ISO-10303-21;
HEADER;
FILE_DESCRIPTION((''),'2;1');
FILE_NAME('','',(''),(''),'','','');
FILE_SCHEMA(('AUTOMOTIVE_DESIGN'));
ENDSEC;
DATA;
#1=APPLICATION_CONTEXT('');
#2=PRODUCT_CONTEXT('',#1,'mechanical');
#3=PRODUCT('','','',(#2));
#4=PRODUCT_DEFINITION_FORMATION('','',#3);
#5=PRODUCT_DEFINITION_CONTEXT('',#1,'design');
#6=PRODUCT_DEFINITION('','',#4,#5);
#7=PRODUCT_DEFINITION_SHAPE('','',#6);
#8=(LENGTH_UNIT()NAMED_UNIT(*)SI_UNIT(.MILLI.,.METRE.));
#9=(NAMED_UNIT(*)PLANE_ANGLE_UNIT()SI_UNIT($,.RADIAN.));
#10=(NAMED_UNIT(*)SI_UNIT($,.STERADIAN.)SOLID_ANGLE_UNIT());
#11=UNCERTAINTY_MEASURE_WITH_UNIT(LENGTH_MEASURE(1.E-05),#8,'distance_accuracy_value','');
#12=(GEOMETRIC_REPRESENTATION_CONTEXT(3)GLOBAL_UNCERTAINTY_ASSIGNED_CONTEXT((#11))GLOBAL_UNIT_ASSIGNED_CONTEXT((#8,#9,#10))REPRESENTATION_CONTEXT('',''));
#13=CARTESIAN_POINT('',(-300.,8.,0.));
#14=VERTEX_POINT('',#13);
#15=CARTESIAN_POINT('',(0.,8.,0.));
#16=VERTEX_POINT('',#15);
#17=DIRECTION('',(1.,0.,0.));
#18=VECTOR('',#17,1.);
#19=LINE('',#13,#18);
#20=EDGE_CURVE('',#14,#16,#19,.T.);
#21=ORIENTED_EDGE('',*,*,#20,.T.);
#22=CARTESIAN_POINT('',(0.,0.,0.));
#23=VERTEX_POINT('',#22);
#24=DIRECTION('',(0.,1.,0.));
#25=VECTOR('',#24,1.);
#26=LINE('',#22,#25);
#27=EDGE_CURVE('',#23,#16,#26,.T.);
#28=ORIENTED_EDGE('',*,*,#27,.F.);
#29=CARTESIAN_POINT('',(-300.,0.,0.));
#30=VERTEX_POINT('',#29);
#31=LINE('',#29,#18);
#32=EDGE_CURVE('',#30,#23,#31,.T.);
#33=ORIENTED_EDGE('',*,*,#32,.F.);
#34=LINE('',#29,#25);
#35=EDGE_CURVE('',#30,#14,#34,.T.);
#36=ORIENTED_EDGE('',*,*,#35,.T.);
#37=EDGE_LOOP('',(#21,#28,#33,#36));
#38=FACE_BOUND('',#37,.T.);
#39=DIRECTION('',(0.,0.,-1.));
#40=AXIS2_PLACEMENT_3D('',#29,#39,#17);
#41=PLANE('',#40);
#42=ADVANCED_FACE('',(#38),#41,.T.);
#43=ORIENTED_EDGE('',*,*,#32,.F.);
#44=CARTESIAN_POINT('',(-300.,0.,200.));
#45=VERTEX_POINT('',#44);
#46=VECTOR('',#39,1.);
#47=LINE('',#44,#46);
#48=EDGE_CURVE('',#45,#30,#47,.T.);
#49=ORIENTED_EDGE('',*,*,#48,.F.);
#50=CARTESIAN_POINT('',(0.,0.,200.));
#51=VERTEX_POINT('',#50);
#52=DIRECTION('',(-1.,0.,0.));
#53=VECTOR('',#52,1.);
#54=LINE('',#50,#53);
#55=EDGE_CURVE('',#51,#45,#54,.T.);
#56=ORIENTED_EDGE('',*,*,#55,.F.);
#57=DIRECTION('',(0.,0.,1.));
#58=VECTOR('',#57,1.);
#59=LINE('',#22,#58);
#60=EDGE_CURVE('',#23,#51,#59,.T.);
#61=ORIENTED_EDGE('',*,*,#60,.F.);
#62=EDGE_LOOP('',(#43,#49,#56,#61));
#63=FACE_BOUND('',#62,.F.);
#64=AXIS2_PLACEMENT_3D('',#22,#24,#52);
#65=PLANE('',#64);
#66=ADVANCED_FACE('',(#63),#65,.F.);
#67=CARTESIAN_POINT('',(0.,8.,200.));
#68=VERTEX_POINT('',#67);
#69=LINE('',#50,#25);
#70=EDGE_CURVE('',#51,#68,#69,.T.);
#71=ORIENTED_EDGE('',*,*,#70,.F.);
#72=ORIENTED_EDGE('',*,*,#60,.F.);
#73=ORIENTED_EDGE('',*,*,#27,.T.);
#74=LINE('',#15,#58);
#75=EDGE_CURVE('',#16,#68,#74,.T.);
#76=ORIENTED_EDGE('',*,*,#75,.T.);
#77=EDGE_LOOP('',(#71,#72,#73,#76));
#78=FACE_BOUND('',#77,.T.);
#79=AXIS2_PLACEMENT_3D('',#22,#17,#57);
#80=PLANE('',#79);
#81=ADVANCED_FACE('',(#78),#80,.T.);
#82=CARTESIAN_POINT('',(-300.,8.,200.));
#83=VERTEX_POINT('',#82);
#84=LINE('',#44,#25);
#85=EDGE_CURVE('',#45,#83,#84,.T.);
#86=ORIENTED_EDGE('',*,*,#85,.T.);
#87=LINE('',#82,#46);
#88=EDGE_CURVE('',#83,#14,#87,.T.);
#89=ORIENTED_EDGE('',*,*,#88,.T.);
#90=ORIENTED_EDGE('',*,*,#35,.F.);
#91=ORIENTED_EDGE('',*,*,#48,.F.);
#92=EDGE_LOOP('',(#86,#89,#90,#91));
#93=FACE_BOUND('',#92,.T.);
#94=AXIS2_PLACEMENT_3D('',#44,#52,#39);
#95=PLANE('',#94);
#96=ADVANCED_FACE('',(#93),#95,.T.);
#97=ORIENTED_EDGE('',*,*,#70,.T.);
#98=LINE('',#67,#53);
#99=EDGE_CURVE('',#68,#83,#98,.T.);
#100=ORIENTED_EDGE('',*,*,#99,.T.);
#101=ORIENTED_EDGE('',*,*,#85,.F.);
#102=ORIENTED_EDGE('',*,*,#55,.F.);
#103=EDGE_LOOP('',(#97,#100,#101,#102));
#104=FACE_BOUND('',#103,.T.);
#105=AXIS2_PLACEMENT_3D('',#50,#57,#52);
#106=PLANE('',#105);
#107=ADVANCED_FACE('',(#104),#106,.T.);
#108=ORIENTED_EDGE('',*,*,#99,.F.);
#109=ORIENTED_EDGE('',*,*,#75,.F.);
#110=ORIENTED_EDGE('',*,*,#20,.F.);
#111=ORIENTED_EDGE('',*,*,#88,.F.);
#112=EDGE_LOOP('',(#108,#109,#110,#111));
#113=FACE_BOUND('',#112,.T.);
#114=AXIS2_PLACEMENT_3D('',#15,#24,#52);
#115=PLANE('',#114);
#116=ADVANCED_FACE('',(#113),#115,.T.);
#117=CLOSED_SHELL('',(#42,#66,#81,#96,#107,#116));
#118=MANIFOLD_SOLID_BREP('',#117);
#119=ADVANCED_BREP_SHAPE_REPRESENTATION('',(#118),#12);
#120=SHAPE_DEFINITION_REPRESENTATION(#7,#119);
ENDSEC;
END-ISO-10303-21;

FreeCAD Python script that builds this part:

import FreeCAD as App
import Part
import Sketcher
Q = App.Units.Quantity

doc = App.newDocument("Part")
body = doc.addObject("PartDesign::Body", "Body")

# Sketch on XZ plane
sketch1 = body.newObject("Sketcher::SketchObject", "Sketch")
sketch1.AttachmentSupport = (doc.getObject("XZ_Plane"), [""])
sketch1.MapMode = "FlatFace"
sketch1.addGeometry(Part.LineSegment(App.Vector(0, 200, 0), App.Vector(0, 0, 0)), False)
sketch1.addGeometry(Part.LineSegment(App.Vector(0, 0, 0), App.Vector(-300, 0, 0)), False)
sketch1.addGeometry(Part.LineSegment(App.Vector(-300, 0, 0), App.Vector(-300, 200, 0)), False)
sketch1.addGeometry(Part.LineSegment(App.Vector(-300, 200, 0), App.Vector(0, 200, 0)), False)
sketch1.addConstraint(Sketcher.Constraint("Coincident", 0, 2, 1, 1))
sketch1.addConstraint(Sketcher.Constraint("Coincident", 1, 2, 2, 1))
sketch1.addConstraint(Sketcher.Constraint("Coincident", 2, 2, 3, 1))
sketch1.addConstraint(Sketcher.Constraint("Coincident", 3, 2, 0, 1))
sketch1.addConstraint(Sketcher.Constraint("Vertical", 0))
sketch1.addConstraint(Sketcher.Constraint("Horizontal", 1))
sketch1.addConstraint(Sketcher.Constraint("Vertical", 2))
sketch1.addConstraint(Sketcher.Constraint("Horizontal", 3))
sketch1.addConstraint(Sketcher.Constraint("Coincident", 0, 2, -1, 1))
sketch1.addConstraint(Sketcher.Constraint("DistanceX", 1, 2, 1, 1, Q("300 mm")))
sketch1.addConstraint(Sketcher.Constraint("DistanceY", 0, 2, 0, 1, Q("200 mm")))
pad1 = body.newObject("PartDesign::Pad", "Pad")
pad1.Profile = sketch1
pad1.Length = 8
pad1.Reversed = True

doc.recompute()
